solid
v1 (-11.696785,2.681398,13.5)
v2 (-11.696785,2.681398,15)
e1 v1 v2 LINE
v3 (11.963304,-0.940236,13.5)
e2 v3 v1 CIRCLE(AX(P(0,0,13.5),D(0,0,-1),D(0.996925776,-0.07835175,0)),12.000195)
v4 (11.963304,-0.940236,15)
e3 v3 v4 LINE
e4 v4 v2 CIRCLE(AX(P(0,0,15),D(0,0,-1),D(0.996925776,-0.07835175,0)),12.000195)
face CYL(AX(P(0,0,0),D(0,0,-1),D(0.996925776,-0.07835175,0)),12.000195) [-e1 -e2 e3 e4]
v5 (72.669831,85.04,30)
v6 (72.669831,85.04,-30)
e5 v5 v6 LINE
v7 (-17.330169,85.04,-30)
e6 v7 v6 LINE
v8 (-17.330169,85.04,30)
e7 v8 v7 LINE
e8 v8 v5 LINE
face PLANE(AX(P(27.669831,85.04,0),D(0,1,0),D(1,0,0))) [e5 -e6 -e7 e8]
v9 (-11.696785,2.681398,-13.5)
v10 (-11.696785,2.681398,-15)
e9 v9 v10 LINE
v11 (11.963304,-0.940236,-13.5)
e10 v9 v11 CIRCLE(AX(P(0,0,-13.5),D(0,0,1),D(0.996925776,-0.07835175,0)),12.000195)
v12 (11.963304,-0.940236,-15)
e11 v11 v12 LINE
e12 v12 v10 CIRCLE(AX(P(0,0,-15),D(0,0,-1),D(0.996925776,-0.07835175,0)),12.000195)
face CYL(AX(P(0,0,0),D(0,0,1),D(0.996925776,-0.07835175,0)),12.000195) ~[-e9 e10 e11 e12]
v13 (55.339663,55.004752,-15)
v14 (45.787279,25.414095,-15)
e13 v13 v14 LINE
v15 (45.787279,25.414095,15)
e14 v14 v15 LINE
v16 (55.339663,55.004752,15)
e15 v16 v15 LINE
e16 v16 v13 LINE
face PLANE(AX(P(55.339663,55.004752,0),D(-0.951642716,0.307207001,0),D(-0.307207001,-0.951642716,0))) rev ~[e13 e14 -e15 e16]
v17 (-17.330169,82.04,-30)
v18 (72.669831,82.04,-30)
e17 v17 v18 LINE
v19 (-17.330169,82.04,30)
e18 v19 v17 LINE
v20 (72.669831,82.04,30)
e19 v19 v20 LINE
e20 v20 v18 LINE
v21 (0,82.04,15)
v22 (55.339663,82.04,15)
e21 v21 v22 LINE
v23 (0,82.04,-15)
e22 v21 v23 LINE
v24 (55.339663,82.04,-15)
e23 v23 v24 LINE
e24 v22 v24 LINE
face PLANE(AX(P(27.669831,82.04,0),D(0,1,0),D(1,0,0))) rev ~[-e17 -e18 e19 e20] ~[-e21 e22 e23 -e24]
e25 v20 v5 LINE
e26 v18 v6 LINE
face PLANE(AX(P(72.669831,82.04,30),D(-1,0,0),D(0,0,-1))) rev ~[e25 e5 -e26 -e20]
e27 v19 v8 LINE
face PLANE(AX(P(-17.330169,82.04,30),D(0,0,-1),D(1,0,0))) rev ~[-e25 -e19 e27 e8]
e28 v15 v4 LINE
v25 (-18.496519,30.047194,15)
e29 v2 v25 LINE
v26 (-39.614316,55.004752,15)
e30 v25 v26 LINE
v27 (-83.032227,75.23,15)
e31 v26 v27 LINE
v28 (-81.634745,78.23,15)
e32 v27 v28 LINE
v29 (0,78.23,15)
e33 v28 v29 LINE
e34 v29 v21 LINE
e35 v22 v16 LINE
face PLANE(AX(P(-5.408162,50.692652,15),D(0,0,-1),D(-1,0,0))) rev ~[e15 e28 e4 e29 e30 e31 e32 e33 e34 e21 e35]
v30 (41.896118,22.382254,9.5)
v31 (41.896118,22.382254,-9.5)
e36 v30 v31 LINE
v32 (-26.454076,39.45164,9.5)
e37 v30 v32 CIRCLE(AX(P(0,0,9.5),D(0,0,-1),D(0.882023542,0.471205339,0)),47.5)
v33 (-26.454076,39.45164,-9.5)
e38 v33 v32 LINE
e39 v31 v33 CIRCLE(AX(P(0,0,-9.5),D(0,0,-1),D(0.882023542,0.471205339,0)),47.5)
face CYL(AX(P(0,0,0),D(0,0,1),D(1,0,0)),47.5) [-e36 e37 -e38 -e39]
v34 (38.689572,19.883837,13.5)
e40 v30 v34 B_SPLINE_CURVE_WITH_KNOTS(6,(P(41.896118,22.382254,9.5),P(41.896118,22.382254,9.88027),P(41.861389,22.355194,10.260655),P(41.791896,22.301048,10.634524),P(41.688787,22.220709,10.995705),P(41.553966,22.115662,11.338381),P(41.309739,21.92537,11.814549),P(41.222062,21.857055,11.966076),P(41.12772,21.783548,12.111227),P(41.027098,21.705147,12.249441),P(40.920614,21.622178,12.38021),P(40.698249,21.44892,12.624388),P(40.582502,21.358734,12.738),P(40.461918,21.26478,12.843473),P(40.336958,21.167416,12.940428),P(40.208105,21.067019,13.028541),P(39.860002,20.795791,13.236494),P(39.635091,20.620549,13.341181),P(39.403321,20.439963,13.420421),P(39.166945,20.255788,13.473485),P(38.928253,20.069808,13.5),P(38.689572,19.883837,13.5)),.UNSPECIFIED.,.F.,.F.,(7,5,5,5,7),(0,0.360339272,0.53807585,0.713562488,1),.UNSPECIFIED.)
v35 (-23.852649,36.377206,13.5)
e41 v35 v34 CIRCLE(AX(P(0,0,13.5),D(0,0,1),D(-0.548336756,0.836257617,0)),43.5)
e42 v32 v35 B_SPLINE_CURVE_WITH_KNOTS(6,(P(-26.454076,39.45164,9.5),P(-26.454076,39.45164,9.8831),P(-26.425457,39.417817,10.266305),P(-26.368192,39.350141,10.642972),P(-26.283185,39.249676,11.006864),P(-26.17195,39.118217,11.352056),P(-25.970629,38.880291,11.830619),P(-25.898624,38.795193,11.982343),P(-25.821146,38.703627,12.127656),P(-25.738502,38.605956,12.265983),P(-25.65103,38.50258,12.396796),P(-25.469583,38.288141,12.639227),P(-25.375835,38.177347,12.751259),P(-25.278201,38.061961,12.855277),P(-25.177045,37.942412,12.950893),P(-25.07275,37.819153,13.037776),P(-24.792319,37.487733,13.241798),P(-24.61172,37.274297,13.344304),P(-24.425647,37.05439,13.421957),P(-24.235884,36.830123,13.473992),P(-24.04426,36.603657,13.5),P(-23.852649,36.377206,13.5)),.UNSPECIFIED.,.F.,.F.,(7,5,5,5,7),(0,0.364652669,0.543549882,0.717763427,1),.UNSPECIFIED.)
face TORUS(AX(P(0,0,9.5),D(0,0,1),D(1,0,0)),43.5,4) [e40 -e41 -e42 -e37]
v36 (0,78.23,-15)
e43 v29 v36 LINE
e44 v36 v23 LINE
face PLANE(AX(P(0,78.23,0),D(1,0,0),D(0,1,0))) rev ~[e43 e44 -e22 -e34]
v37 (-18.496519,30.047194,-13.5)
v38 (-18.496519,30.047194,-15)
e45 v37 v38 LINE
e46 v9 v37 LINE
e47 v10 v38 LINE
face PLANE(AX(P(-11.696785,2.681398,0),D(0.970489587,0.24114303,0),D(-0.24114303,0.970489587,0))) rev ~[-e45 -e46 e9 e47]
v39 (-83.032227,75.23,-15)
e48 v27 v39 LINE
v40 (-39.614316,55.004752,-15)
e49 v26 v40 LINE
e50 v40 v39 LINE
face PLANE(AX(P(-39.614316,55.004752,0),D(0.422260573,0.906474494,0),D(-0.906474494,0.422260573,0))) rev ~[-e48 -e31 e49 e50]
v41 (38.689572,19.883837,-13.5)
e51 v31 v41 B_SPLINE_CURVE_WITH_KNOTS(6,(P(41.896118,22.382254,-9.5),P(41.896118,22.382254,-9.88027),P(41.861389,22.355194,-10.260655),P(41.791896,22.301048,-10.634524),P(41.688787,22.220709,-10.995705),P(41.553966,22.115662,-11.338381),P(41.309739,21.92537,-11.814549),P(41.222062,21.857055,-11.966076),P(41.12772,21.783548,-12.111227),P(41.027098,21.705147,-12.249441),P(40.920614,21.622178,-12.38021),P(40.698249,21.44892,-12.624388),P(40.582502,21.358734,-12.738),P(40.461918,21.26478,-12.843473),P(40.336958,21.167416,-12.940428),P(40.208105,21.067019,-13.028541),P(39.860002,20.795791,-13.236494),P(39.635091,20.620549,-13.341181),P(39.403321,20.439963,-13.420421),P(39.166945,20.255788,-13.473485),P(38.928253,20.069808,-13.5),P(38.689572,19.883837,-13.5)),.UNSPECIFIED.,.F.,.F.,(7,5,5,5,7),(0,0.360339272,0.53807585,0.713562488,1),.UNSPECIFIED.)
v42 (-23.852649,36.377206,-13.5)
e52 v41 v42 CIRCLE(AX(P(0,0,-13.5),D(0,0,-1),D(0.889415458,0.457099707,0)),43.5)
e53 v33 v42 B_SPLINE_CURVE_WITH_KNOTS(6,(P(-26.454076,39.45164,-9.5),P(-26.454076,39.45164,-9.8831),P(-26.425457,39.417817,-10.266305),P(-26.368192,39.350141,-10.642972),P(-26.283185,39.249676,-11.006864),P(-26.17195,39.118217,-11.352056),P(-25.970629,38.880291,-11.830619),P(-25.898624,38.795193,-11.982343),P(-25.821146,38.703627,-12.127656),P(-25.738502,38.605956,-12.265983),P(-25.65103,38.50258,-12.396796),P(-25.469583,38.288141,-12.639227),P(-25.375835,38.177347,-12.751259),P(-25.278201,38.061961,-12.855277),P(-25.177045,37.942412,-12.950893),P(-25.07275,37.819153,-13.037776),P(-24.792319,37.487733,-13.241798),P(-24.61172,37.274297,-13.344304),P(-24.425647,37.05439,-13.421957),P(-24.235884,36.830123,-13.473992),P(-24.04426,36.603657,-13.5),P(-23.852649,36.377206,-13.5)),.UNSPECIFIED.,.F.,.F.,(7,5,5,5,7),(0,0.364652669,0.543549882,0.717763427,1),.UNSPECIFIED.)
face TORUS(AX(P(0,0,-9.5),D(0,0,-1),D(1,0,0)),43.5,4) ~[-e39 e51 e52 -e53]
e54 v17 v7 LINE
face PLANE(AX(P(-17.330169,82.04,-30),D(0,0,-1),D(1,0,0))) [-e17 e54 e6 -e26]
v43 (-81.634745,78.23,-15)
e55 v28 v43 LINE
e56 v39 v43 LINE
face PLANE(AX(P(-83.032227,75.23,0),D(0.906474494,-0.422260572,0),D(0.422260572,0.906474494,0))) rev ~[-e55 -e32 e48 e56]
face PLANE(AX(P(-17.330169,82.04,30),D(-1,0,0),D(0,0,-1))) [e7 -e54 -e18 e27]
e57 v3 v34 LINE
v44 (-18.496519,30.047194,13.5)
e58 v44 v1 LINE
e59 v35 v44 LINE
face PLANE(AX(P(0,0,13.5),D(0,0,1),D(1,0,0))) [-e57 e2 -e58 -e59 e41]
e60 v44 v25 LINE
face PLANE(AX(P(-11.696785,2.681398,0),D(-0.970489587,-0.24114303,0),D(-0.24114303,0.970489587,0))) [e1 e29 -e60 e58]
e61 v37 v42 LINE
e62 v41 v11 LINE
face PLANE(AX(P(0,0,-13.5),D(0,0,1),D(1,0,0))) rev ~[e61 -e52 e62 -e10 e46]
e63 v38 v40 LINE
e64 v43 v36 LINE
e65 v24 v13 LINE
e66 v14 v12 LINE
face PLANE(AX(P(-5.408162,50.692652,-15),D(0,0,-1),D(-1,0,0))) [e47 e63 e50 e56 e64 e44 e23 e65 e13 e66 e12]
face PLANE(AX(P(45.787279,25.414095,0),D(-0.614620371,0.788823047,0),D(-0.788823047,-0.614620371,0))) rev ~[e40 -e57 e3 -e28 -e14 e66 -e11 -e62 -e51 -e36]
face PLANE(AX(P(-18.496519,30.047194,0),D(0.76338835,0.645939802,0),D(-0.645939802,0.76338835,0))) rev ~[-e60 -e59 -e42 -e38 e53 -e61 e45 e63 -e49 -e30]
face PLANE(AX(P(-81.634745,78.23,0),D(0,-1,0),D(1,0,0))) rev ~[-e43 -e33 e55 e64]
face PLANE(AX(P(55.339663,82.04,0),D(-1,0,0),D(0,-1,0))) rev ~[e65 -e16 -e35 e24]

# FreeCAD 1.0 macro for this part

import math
import FreeCAD as App
import Part
import Sketcher
from FreeCAD import Vector
Q = App.Units.Quantity


def edges_at(feature, points):
    """Names of the edges that pass closest to the given points."""
    edges = feature.Shape.Edges
    near = lambda p: min(range(len(edges)), key=lambda i: edges[i].distToShape(Part.Vertex(*p))[0])
    return sorted({f"Edge{near(p) + 1}" for p in points})

doc = App.newDocument("Part")
body = doc.addObject("PartDesign::Body", "Body")

# Sketch on XY plane
sketch1 = body.newObject("Sketcher::SketchObject", "Sketch")
sketch1.AttachmentSupport = (doc.getObject("XY_Plane"), [""])
sketch1.MapMode = "FlatFace"
sketch1.addGeometry(Part.Circle(Vector(0, 0, 0), Vector(0, 0, 1), 48), False)
sketch1.addConstraint([
    Sketcher.Constraint("Coincident", 0, 3, -1, 1),
    Sketcher.Constraint("Diameter", 0, Q("95 mm")),
])
pad1 = body.newObject("PartDesign::Pad", "Pad")
pad1.Profile = sketch1
pad1.Type = "TwoLengths"
pad1.Length = 13.5
pad1.Length2 = 13.5
doc.recompute()

fillet = body.newObject("PartDesign::Fillet", "Fillet")
fillet.Base = (pad1, edges_at(pad1, [(-47.5, 0, 13.5), (-47.5, 0, -13.5)]))
fillet.Radius = 4

# Sketch on XY plane
sketch2 = body.newObject("Sketcher::SketchObject", "Sketch001")
sketch2.AttachmentSupport = (doc.getObject("XY_Plane"), [""])
sketch2.MapMode = "FlatFace"
sketch2.addGeometry([
    Part.LineSegment(Vector(-18.5, 30, 0), Vector(-11.7, 2.7, 0)),  # 0
    Part.ArcOfCircle(Part.Circle(Vector(0, 0, 0), Vector(0, 0, 1), 12), math.radians(167), math.radians(356)),  # 1
    Part.LineSegment(Vector(12, -0.9, 0), Vector(45.8, 25.4, 0)),  # 2
    Part.LineSegment(Vector(45.8, 25.4, 0), Vector(55.3, 55, 0)),  # 3
    Part.LineSegment(Vector(55.3, 55, 0), Vector(55.3, 82, 0)),  # 4
    Part.LineSegment(Vector(55.3, 82, 0), Vector(0, 82, 0)),  # 5
    Part.LineSegment(Vector(0, 82, 0), Vector(0, 78.2, 0)),  # 6
    Part.LineSegment(Vector(0, 78.2, 0), Vector(-81.6, 78.2, 0)),  # 7
    Part.LineSegment(Vector(-81.6, 78.2, 0), Vector(-83, 75.2, 0)),  # 8
    Part.LineSegment(Vector(-83, 75.2, 0), Vector(-39.6, 55, 0)),  # 9
    Part.LineSegment(Vector(-39.6, 55, 0), Vector(-18.5, 30, 0)),  # 10
], False)
sketch2.addConstraint([
    Sketcher.Constraint("Coincident", 0, 2, 1, 1),
    Sketcher.Constraint("Coincident", 1, 2, 2, 1),
    Sketcher.Constraint("Coincident", 2, 2, 3, 1),
    Sketcher.Constraint("Coincident", 3, 2, 4, 1),
    Sketcher.Constraint("Coincident", 4, 2, 5, 1),
    Sketcher.Constraint("Coincident", 5, 2, 6, 1),
    Sketcher.Constraint("Coincident", 6, 2, 7, 1),
    Sketcher.Constraint("Coincident", 7, 2, 8, 1),
    Sketcher.Constraint("Coincident", 8, 2, 9, 1),
    Sketcher.Constraint("Coincident", 9, 2, 10, 1),
    Sketcher.Constraint("Coincident", 10, 2, 0, 1),
    Sketcher.Constraint("Vertical", 4),
    Sketcher.Constraint("Horizontal", 5),
    Sketcher.Constraint("Vertical", 6),
    Sketcher.Constraint("Horizontal", 7),
    Sketcher.Constraint("Coincident", 1, 3, -1, 1),
    Sketcher.Constraint("PointOnObject", 5, 2, -2),
    Sketcher.Constraint("Perpendicular", 8, 9),
    Sketcher.Constraint("Horizontal", 3, 2, 9, 2),
    Sketcher.Constraint("DistanceY", 8, 2, 7, 2, Q("3 mm")),
    Sketcher.Constraint("DistanceY", 6, 2, 6, 1, Q("3.81 mm")),
    Sketcher.Constraint("DistanceY", -1, 1, 4, 2, Q("82.04 mm")),
    Sketcher.Constraint("Radius", 1, Q("12.000195 mm")),
    Sketcher.Constraint("DistanceY", 4, 1, 4, 2, Q("27.035248 mm")),
    Sketcher.Constraint("Distance", 0, Q("28.197929 mm")),
    Sketcher.Constraint("Distance", 2, Q("42.87904 mm")),
    Sketcher.Constraint("Distance", 3, Q("31.094292 mm")),
    Sketcher.Constraint("DistanceX", 5, 2, 5, 1, Q("55.339663 mm")),
    Sketcher.Constraint("DistanceX", 7, 2, 7, 1, Q("81.634745 mm")),
    Sketcher.Constraint("DistanceX", -1, 1, 2, 2, Q("45.787279 mm")),
    Sketcher.Constraint("DistanceX", 10, 2, -1, 1, Q("18.496519 mm")),
    Sketcher.Constraint("DistanceX", 0, 2, 1, 2, Q("23.660089 mm")),
    Sketcher.Constraint("DistanceX", 8, 2, 7, 2, Q("1.397482 mm")),
])
pad2 = body.newObject("PartDesign::Pad", "Pad001")
pad2.Profile = sketch2
pad2.Type = "TwoLengths"
pad2.Length = 15
pad2.Length2 = 15

# Sketch on XZ plane
sketch3 = body.newObject("Sketcher::SketchObject", "Sketch002")
sketch3.AttachmentSupport = (doc.getObject("XZ_Plane"), [""])
sketch3.MapMode = "FlatFace"
sketch3.AttachmentOffset = App.Placement(Vector(0, 0, -82.04), App.Rotation())
sketch3.addGeometry([
    Part.LineSegment(Vector(-17, -30, 0), Vector(-17, 30, 0)),
    Part.LineSegment(Vector(-17, 30, 0), Vector(73, 30, 0)),
    Part.LineSegment(Vector(73, 30, 0), Vector(73, -30, 0)),
    Part.LineSegment(Vector(73, -30, 0), Vector(-17, -30, 0)),
], False)
sketch3.addConstraint([
    Sketcher.Constraint("Coincident", 0, 2, 1, 1),
    Sketcher.Constraint("Coincident", 1, 2, 2, 1),
    Sketcher.Constraint("Coincident", 2, 2, 3, 1),
    Sketcher.Constraint("Coincident", 3, 2, 0, 1),
    Sketcher.Constraint("Vertical", 0),
    Sketcher.Constraint("Horizontal", 1),
    Sketcher.Constraint("Vertical", 2),
    Sketcher.Constraint("Horizontal", 3),
    Sketcher.Constraint("DistanceX", 1, 1, 1, 2, Q("90 mm")),
    Sketcher.Constraint("DistanceY", 0, 1, 0, 2, Q("60 mm")),
    Sketcher.Constraint("DistanceY", -1, 1, 0, 2, Q("30 mm")),
    Sketcher.Constraint("DistanceX", 0, 2, -1, 1, Q("17.330169 mm")),
])
pad3 = body.newObject("PartDesign::Pad", "Pad002")
pad3.Profile = sketch3
pad3.Length = 3
pad3.Reversed = True

doc.recompute()
